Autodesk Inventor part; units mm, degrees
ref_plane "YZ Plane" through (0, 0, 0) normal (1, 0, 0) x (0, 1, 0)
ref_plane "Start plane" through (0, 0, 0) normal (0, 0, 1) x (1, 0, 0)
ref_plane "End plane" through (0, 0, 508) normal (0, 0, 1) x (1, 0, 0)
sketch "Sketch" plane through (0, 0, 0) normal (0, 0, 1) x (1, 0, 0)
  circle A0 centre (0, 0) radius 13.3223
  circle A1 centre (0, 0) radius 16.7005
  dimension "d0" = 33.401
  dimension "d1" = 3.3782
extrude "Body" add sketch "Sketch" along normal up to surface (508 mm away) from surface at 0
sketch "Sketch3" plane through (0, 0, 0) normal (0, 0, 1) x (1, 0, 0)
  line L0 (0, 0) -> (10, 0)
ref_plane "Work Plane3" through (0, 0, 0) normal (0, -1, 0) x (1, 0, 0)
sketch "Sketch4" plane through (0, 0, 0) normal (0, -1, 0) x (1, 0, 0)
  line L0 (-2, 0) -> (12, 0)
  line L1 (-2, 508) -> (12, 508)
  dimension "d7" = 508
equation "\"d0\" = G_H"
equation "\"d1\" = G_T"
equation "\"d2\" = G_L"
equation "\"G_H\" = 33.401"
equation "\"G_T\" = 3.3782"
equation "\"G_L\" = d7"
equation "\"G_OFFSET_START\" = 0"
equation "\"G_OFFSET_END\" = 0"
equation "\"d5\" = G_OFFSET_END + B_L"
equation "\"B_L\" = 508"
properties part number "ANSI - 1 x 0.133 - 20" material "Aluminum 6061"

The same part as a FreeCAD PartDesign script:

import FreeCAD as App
import Part
import Sketcher

V = App.Vector
Q = App.Units.Quantity

doc = App.newDocument("Part")
body = doc.addObject("PartDesign::Body", "Body")

# Sketch on XY plane
sketch1 = body.newObject("Sketcher::SketchObject", "Sketch")
sketch1.AttachmentSupport = (doc.getObject("XY_Plane"), [""])
sketch1.MapMode = "FlatFace"
sketch1.addGeometry([
    Part.Circle(V(0, 0, 0), V(0, 0, 1), 16.7005),
    Part.Circle(V(0, 0, 0), V(0, 0, 1), 13.3223),
], False)
sketch1.addConstraint([
    Sketcher.Constraint("Coincident", 0, 3, -1, 1),
    Sketcher.Constraint("Coincident", 1, 3, -1, 1),
    Sketcher.Constraint("Diameter", 0, Q("1.315 in")),
    Sketcher.Constraint("Diameter", 1, Q("1.049 in")),
])
pad1 = body.newObject("PartDesign::Pad", "Pad")
pad1.Profile = sketch1
pad1.Length = Q("20 in")

doc.recompute()
